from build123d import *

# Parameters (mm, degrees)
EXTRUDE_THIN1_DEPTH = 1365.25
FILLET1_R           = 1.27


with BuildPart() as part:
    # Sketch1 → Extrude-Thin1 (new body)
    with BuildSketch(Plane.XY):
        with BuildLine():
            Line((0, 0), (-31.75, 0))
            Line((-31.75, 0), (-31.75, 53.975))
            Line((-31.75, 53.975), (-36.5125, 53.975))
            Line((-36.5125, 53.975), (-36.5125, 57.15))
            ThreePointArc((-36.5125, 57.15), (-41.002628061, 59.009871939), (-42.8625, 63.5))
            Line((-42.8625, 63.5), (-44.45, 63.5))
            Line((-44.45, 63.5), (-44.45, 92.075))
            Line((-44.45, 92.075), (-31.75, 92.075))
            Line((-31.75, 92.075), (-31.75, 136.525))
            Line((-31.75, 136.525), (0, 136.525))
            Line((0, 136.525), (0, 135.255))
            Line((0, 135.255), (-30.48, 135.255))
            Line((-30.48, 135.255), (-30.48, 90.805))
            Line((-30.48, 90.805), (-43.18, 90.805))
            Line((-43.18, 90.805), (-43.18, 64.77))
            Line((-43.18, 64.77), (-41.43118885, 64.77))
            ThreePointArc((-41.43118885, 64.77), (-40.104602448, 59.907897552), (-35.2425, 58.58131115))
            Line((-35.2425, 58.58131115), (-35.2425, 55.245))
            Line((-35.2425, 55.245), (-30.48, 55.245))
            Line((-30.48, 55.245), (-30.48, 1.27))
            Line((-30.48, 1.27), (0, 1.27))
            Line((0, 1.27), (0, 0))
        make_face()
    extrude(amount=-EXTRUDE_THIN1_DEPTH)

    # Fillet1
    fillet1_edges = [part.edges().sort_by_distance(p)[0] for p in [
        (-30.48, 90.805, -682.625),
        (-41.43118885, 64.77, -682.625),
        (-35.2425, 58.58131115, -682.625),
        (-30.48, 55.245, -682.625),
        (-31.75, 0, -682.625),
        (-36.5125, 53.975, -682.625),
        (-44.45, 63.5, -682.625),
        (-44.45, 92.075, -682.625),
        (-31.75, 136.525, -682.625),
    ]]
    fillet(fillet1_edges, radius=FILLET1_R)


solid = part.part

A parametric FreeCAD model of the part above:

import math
import FreeCAD as App
import Part
import Sketcher
Q = App.Units.Quantity


def edges_at(feature, points):
    """Names of the edges that pass closest to the given points."""
    edges = feature.Shape.Edges
    near = lambda p: min(range(len(edges)), key=lambda i: edges[i].distToShape(Part.Vertex(*p))[0])
    return sorted({f"Edge{near(p) + 1}" for p in points})

doc = App.newDocument("Part")
body = doc.addObject("PartDesign::Body", "Body")

sketch1 = body.newObject("Sketcher::SketchObject", "Sketch")
sketch1.AttachmentSupport = (doc.getObject("XY_Plane"), [""])
sketch1.MapMode = "FlatFace"
sketch1.addGeometry(Part.LineSegment(App.Vector(-31.8, 0, 0), App.Vector(0, 0, 0)), False)
sketch1.addGeometry(Part.LineSegment(App.Vector(0, 0, 0), App.Vector(0, 1.3, 0)), False)
sketch1.addGeometry(Part.LineSegment(App.Vector(0, 1.3, 0), App.Vector(-30.5, 1.3, 0)), False)
sketch1.addGeometry(Part.LineSegment(App.Vector(-30.5, 1.3, 0), App.Vector(-30.5, 55.2, 0)), False)
sketch1.addGeometry(Part.LineSegment(App.Vector(-30.5, 55.2, 0), App.Vector(-35.2, 55.2, 0)), False)
sketch1.addGeometry(Part.LineSegment(App.Vector(-35.2, 55.2, 0), App.Vector(-35.2, 58.6, 0)), False)
sketch1.addGeometry(Part.ArcOfCircle(Part.Circle(App.Vector(-36.5, 63.5, 0), App.Vector(0, 0, 1), 5.1), math.radians(166), math.radians(284)), False)
sketch1.addGeometry(Part.LineSegment(App.Vector(-41.4, 64.8, 0), App.Vector(-43.2, 64.8, 0)), False)
sketch1.addGeometry(Part.LineSegment(App.Vector(-43.2, 64.8, 0), App.Vector(-43.2, 90.8, 0)), False)
sketch1.addGeometry(Part.LineSegment(App.Vector(-43.2, 90.8, 0), App.Vector(-30.5, 90.8, 0)), False)
sketch1.addGeometry(Part.LineSegment(App.Vector(-30.5, 90.8, 0), App.Vector(-30.5, 135.3, 0)), False)
sketch1.addGeometry(Part.LineSegment(App.Vector(-30.5, 135.3, 0), App.Vector(0, 135.3, 0)), False)
sketch1.addGeometry(Part.LineSegment(App.Vector(0, 135.3, 0), App.Vector(0, 136.5, 0)), False)
sketch1.addGeometry(Part.LineSegment(App.Vector(0, 136.5, 0), App.Vector(-31.8, 136.5, 0)), False)
sketch1.addGeometry(Part.LineSegment(App.Vector(-31.8, 136.5, 0), App.Vector(-31.8, 92.1, 0)), False)
sketch1.addGeometry(Part.LineSegment(App.Vector(-31.8, 92.1, 0), App.Vector(-44.5, 92.1, 0)), False)
sketch1.addGeometry(Part.LineSegment(App.Vector(-44.5, 92.1, 0), App.Vector(-44.5, 63.5, 0)), False)
sketch1.addGeometry(Part.LineSegment(App.Vector(-44.5, 63.5, 0), App.Vector(-42.9, 63.5, 0)), False)
sketch1.addGeometry(Part.ArcOfCircle(Part.Circle(App.Vector(-36.5, 63.5, 0), App.Vector(0, 0, 1), 6.3), math.radians(180), math.radians(270)), False)
sketch1.addGeometry(Part.LineSegment(App.Vector(-36.5, 57.1, 0), App.Vector(-36.5, 54, 0)), False)
sketch1.addGeometry(Part.LineSegment(App.Vector(-36.5, 54, 0), App.Vector(-31.8, 54, 0)), False)
sketch1.addGeometry(Part.LineSegment(App.Vector(-31.8, 54, 0), App.Vector(-31.8, 0, 0)), False)
sketch1.addConstraint(Sketcher.Constraint("Coincident", 0, 2, 1, 1))
sketch1.addConstraint(Sketcher.Constraint("Coincident", 1, 2, 2, 1))
sketch1.addConstraint(Sketcher.Constraint("Coincident", 2, 2, 3, 1))
sketch1.addConstraint(Sketcher.Constraint("Coincident", 3, 2, 4, 1))
sketch1.addConstraint(Sketcher.Constraint("Coincident", 4, 2, 5, 1))
sketch1.addConstraint(Sketcher.Constraint("Coincident", 5, 2, 6, 2))
sketch1.addConstraint(Sketcher.Constraint("Coincident", 6, 1, 7, 1))
sketch1.addConstraint(Sketcher.Constraint("Coincident", 7, 2, 8, 1))
sketch1.addConstraint(Sketcher.Constraint("Coincident", 8, 2, 9, 1))
sketch1.addConstraint(Sketcher.Constraint("Coincident", 9, 2, 10, 1))
sketch1.addConstraint(Sketcher.Constraint("Coincident", 10, 2, 11, 1))
sketch1.addConstraint(Sketcher.Constraint("Coincident", 11, 2, 12, 1))
sketch1.addConstraint(Sketcher.Constraint("Coincident", 12, 2, 13, 1))
sketch1.addConstraint(Sketcher.Constraint("Coincident", 13, 2, 14, 1))
sketch1.addConstraint(Sketcher.Constraint("Coincident", 14, 2, 15, 1))
sketch1.addConstraint(Sketcher.Constraint("Coincident", 15, 2, 16, 1))
sketch1.addConstraint(Sketcher.Constraint("Coincident", 16, 2, 17, 1))
sketch1.addConstraint(Sketcher.Constraint("Coincident", 17, 2, 18, 1))
sketch1.addConstraint(Sketcher.Constraint("Coincident", 18, 2, 19, 1))
sketch1.addConstraint(Sketcher.Constraint("Coincident", 19, 2, 20, 1))
sketch1.addConstraint(Sketcher.Constraint("Coincident", 20, 2, 21, 1))
sketch1.addConstraint(Sketcher.Constraint("Coincident", 21, 2, 0, 1))
sketch1.addConstraint(Sketcher.Constraint("Horizontal", 0))
sketch1.addConstraint(Sketcher.Constraint("Vertical", 1))
sketch1.addConstraint(Sketcher.Constraint("Horizontal", 2))
sketch1.addConstraint(Sketcher.Constraint("Vertical", 3))
sketch1.addConstraint(Sketcher.Constraint("Horizontal", 4))
sketch1.addConstraint(Sketcher.Constraint("Vertical", 5))
sketch1.addConstraint(Sketcher.Constraint("Horizontal", 7))
sketch1.addConstraint(Sketcher.Constraint("Vertical", 8))
sketch1.addConstraint(Sketcher.Constraint("Horizontal", 9))
sketch1.addConstraint(Sketcher.Constraint("Vertical", 10))
sketch1.addConstraint(Sketcher.Constraint("Horizontal", 11))
sketch1.addConstraint(Sketcher.Constraint("Vertical", 12))
sketch1.addConstraint(Sketcher.Constraint("Horizontal", 13))
sketch1.addConstraint(Sketcher.Constraint("Vertical", 14))
sketch1.addConstraint(Sketcher.Constraint("Horizontal", 15))
sketch1.addConstraint(Sketcher.Constraint("Vertical", 16))
sketch1.addConstraint(Sketcher.Constraint("Horizontal", 17))
sketch1.addConstraint(Sketcher.Constraint("Vertical", 19))
sketch1.addConstraint(Sketcher.Constraint("Horizontal", 20))
sketch1.addConstraint(Sketcher.Constraint("Vertical", 21))
sketch1.addConstraint(Sketcher.Constraint("Coincident", 0, 2, -1, 1))
sketch1.addConstraint(Sketcher.Constraint("Coincident", 18, 3, 6, 3))
sketch1.addConstraint(Sketcher.Constraint("PointOnObject", 11, 2, -2))
sketch1.addConstraint(Sketcher.Constraint("Horizontal", 18, 3, 16, 2))
sketch1.addConstraint(Sketcher.Constraint("Vertical", 3, 2, 9, 2))
sketch1.addConstraint(Sketcher.Constraint("Vertical", 6, 3, 18, 2))
sketch1.addConstraint(Sketcher.Constraint("Vertical", 14, 2, 20, 2))
sketch1.addConstraint(Sketcher.Constraint("Equal", 9, 15))
sketch1.addConstraint(Sketcher.Constraint("Equal", 4, 20))
sketch1.addConstraint(Sketcher.Constraint("Equal", 1, 12))
sketch1.addConstraint(Sketcher.Constraint("Equal", 10, 14))
sketch1.addConstraint(Sketcher.Constraint("Equal", 3, 21))
sketch1.addConstraint(Sketcher.Constraint("Radius", 6, Q("0.2 in")))
sketch1.addConstraint(Sketcher.Constraint("Radius", 18, Q("0.25 in")))
sketch1.addConstraint(Sketcher.Constraint("DistanceX", 2, 2, 2, 1, Q("1.2 in")))
sketch1.addConstraint(Sketcher.Constraint("DistanceX", 9, 1, 9, 2, Q("0.5 in")))
sketch1.addConstraint(Sketcher.Constraint("DistanceX", 0, 1, 0, 2, Q("1.25 in")))
sketch1.addConstraint(Sketcher.Constraint("DistanceY", 1, 1, 1, 2, Q("0.05 in")))
sketch1.addConstraint(Sketcher.Constraint("DistanceY", 10, 1, 10, 2, Q("1.75 in")))
sketch1.addConstraint(Sketcher.Constraint("DistanceY", -1, 1, 6, 3, Q("2.5 in")))
sketch1.addConstraint(Sketcher.Constraint("DistanceX", 4, 2, 4, 1, Q("0.1875 in")))
sketch1.addConstraint(Sketcher.Constraint("DistanceY", 3, 1, 3, 2, Q("2.125 in")))
sketch1.addConstraint(Sketcher.Constraint("DistanceY", 8, 1, 8, 2, Q("1.025 in")))
sketch1.addConstraint(Sketcher.Constraint("DistanceY", 16, 2, 16, 1, Q("1.125 in")))
pad1 = body.newObject("PartDesign::Pad", "Pad")
pad1.Profile = sketch1
pad1.Length = Q("53.75 in")
pad1.Reversed = True
doc.recompute()

fillet = body.newObject("PartDesign::Fillet", "Fillet")
fillet.Base = (pad1, edges_at(pad1, [
    (-30.48, 90.805, -682.625),
    (-41.431, 64.77, -682.625),
    (-35.242, 58.581, -682.625),
    (-30.48, 55.245, -682.625),
    (-31.75, 0, -682.625),
    (-36.513, 53.975, -682.625),
    (-44.45, 63.5, -682.625),
    (-44.45, 92.075, -682.625),
    (-31.75, 136.525, -682.625),
]))
fillet.Radius = Q("0.05 in")

doc.recompute()
